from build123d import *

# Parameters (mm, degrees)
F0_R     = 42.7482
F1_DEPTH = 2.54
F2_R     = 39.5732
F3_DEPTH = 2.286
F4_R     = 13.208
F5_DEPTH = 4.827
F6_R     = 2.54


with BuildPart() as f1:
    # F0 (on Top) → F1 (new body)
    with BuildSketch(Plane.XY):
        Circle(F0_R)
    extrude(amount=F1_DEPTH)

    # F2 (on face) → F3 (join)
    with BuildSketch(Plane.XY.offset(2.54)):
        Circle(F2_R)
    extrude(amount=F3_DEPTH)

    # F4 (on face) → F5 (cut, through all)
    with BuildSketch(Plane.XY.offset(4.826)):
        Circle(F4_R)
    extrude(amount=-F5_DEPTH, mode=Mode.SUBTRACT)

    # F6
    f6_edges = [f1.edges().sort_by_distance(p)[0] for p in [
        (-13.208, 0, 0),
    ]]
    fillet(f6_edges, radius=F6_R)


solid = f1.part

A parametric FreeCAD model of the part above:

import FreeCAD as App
import Part
import Sketcher
Q = App.Units.Quantity


def edges_at(feature, points):
    """Names of the edges that pass closest to the given points."""
    edges = feature.Shape.Edges
    near = lambda p: min(range(len(edges)), key=lambda i: edges[i].distToShape(Part.Vertex(*p))[0])
    return sorted({f"Edge{near(p) + 1}" for p in points})

doc = App.newDocument("Part")
body = doc.addObject("PartDesign::Body", "Body")

# Sketch on XY plane
sketch1 = body.newObject("Sketcher::SketchObject", "Sketch")
sketch1.AttachmentSupport = (doc.getObject("XY_Plane"), [""])
sketch1.MapMode = "FlatFace"
sketch1.addGeometry(Part.Circle(App.Vector(0, 0, 0), App.Vector(0, 0, 1), 43), False)
sketch1.addConstraint([
    Sketcher.Constraint("Coincident", 0, 3, -1, 1),
    Sketcher.Constraint("Diameter", 0, Q("3.366 in")),
])
pad1 = body.newObject("PartDesign::Pad", "Pad")
pad1.Profile = sketch1
pad1.Length = Q("0.1 in")

# Sketch on XY plane
sketch2 = body.newObject("Sketcher::SketchObject", "Sketch001")
sketch2.AttachmentSupport = (doc.getObject("XY_Plane"), [""])
sketch2.MapMode = "FlatFace"
sketch2.AttachmentOffset = App.Placement(App.Vector(0, 0, 0.1 * 25.4), App.Rotation())
sketch2.addGeometry(Part.Circle(App.Vector(0, 0, 0), App.Vector(0, 0, 1), 40), False)
sketch2.addConstraint([
    Sketcher.Constraint("Coincident", 0, 3, -1, 1),
    Sketcher.Constraint("Diameter", 0, Q("3.116 in")),
])
pad2 = body.newObject("PartDesign::Pad", "Pad001")
pad2.Profile = sketch2
pad2.Length = Q("0.09 in")

# Sketch on XY plane
sketch3 = body.newObject("Sketcher::SketchObject", "Sketch002")
sketch3.AttachmentSupport = (doc.getObject("XY_Plane"), [""])
sketch3.MapMode = "FlatFace"
sketch3.AttachmentOffset = App.Placement(App.Vector(0, 0, 0.19 * 25.4), App.Rotation())
sketch3.addGeometry(Part.Circle(App.Vector(0, 0, 0), App.Vector(0, 0, 1), 13), False)
sketch3.addConstraint([
    Sketcher.Constraint("Coincident", 0, 3, -1, 1),
    Sketcher.Constraint("Diameter", 0, Q("1.04 in")),
])
pocket1 = body.newObject("PartDesign::Pocket", "Pocket")
pocket1.Profile = sketch3
pocket1.Type = "ThroughAll"
doc.recompute()

fillet = body.newObject("PartDesign::Fillet", "Fillet")
fillet.Base = (pocket1, edges_at(pocket1, [(-13.208, 0, 0)]))
fillet.Radius = Q("0.1 in")

doc.recompute()
